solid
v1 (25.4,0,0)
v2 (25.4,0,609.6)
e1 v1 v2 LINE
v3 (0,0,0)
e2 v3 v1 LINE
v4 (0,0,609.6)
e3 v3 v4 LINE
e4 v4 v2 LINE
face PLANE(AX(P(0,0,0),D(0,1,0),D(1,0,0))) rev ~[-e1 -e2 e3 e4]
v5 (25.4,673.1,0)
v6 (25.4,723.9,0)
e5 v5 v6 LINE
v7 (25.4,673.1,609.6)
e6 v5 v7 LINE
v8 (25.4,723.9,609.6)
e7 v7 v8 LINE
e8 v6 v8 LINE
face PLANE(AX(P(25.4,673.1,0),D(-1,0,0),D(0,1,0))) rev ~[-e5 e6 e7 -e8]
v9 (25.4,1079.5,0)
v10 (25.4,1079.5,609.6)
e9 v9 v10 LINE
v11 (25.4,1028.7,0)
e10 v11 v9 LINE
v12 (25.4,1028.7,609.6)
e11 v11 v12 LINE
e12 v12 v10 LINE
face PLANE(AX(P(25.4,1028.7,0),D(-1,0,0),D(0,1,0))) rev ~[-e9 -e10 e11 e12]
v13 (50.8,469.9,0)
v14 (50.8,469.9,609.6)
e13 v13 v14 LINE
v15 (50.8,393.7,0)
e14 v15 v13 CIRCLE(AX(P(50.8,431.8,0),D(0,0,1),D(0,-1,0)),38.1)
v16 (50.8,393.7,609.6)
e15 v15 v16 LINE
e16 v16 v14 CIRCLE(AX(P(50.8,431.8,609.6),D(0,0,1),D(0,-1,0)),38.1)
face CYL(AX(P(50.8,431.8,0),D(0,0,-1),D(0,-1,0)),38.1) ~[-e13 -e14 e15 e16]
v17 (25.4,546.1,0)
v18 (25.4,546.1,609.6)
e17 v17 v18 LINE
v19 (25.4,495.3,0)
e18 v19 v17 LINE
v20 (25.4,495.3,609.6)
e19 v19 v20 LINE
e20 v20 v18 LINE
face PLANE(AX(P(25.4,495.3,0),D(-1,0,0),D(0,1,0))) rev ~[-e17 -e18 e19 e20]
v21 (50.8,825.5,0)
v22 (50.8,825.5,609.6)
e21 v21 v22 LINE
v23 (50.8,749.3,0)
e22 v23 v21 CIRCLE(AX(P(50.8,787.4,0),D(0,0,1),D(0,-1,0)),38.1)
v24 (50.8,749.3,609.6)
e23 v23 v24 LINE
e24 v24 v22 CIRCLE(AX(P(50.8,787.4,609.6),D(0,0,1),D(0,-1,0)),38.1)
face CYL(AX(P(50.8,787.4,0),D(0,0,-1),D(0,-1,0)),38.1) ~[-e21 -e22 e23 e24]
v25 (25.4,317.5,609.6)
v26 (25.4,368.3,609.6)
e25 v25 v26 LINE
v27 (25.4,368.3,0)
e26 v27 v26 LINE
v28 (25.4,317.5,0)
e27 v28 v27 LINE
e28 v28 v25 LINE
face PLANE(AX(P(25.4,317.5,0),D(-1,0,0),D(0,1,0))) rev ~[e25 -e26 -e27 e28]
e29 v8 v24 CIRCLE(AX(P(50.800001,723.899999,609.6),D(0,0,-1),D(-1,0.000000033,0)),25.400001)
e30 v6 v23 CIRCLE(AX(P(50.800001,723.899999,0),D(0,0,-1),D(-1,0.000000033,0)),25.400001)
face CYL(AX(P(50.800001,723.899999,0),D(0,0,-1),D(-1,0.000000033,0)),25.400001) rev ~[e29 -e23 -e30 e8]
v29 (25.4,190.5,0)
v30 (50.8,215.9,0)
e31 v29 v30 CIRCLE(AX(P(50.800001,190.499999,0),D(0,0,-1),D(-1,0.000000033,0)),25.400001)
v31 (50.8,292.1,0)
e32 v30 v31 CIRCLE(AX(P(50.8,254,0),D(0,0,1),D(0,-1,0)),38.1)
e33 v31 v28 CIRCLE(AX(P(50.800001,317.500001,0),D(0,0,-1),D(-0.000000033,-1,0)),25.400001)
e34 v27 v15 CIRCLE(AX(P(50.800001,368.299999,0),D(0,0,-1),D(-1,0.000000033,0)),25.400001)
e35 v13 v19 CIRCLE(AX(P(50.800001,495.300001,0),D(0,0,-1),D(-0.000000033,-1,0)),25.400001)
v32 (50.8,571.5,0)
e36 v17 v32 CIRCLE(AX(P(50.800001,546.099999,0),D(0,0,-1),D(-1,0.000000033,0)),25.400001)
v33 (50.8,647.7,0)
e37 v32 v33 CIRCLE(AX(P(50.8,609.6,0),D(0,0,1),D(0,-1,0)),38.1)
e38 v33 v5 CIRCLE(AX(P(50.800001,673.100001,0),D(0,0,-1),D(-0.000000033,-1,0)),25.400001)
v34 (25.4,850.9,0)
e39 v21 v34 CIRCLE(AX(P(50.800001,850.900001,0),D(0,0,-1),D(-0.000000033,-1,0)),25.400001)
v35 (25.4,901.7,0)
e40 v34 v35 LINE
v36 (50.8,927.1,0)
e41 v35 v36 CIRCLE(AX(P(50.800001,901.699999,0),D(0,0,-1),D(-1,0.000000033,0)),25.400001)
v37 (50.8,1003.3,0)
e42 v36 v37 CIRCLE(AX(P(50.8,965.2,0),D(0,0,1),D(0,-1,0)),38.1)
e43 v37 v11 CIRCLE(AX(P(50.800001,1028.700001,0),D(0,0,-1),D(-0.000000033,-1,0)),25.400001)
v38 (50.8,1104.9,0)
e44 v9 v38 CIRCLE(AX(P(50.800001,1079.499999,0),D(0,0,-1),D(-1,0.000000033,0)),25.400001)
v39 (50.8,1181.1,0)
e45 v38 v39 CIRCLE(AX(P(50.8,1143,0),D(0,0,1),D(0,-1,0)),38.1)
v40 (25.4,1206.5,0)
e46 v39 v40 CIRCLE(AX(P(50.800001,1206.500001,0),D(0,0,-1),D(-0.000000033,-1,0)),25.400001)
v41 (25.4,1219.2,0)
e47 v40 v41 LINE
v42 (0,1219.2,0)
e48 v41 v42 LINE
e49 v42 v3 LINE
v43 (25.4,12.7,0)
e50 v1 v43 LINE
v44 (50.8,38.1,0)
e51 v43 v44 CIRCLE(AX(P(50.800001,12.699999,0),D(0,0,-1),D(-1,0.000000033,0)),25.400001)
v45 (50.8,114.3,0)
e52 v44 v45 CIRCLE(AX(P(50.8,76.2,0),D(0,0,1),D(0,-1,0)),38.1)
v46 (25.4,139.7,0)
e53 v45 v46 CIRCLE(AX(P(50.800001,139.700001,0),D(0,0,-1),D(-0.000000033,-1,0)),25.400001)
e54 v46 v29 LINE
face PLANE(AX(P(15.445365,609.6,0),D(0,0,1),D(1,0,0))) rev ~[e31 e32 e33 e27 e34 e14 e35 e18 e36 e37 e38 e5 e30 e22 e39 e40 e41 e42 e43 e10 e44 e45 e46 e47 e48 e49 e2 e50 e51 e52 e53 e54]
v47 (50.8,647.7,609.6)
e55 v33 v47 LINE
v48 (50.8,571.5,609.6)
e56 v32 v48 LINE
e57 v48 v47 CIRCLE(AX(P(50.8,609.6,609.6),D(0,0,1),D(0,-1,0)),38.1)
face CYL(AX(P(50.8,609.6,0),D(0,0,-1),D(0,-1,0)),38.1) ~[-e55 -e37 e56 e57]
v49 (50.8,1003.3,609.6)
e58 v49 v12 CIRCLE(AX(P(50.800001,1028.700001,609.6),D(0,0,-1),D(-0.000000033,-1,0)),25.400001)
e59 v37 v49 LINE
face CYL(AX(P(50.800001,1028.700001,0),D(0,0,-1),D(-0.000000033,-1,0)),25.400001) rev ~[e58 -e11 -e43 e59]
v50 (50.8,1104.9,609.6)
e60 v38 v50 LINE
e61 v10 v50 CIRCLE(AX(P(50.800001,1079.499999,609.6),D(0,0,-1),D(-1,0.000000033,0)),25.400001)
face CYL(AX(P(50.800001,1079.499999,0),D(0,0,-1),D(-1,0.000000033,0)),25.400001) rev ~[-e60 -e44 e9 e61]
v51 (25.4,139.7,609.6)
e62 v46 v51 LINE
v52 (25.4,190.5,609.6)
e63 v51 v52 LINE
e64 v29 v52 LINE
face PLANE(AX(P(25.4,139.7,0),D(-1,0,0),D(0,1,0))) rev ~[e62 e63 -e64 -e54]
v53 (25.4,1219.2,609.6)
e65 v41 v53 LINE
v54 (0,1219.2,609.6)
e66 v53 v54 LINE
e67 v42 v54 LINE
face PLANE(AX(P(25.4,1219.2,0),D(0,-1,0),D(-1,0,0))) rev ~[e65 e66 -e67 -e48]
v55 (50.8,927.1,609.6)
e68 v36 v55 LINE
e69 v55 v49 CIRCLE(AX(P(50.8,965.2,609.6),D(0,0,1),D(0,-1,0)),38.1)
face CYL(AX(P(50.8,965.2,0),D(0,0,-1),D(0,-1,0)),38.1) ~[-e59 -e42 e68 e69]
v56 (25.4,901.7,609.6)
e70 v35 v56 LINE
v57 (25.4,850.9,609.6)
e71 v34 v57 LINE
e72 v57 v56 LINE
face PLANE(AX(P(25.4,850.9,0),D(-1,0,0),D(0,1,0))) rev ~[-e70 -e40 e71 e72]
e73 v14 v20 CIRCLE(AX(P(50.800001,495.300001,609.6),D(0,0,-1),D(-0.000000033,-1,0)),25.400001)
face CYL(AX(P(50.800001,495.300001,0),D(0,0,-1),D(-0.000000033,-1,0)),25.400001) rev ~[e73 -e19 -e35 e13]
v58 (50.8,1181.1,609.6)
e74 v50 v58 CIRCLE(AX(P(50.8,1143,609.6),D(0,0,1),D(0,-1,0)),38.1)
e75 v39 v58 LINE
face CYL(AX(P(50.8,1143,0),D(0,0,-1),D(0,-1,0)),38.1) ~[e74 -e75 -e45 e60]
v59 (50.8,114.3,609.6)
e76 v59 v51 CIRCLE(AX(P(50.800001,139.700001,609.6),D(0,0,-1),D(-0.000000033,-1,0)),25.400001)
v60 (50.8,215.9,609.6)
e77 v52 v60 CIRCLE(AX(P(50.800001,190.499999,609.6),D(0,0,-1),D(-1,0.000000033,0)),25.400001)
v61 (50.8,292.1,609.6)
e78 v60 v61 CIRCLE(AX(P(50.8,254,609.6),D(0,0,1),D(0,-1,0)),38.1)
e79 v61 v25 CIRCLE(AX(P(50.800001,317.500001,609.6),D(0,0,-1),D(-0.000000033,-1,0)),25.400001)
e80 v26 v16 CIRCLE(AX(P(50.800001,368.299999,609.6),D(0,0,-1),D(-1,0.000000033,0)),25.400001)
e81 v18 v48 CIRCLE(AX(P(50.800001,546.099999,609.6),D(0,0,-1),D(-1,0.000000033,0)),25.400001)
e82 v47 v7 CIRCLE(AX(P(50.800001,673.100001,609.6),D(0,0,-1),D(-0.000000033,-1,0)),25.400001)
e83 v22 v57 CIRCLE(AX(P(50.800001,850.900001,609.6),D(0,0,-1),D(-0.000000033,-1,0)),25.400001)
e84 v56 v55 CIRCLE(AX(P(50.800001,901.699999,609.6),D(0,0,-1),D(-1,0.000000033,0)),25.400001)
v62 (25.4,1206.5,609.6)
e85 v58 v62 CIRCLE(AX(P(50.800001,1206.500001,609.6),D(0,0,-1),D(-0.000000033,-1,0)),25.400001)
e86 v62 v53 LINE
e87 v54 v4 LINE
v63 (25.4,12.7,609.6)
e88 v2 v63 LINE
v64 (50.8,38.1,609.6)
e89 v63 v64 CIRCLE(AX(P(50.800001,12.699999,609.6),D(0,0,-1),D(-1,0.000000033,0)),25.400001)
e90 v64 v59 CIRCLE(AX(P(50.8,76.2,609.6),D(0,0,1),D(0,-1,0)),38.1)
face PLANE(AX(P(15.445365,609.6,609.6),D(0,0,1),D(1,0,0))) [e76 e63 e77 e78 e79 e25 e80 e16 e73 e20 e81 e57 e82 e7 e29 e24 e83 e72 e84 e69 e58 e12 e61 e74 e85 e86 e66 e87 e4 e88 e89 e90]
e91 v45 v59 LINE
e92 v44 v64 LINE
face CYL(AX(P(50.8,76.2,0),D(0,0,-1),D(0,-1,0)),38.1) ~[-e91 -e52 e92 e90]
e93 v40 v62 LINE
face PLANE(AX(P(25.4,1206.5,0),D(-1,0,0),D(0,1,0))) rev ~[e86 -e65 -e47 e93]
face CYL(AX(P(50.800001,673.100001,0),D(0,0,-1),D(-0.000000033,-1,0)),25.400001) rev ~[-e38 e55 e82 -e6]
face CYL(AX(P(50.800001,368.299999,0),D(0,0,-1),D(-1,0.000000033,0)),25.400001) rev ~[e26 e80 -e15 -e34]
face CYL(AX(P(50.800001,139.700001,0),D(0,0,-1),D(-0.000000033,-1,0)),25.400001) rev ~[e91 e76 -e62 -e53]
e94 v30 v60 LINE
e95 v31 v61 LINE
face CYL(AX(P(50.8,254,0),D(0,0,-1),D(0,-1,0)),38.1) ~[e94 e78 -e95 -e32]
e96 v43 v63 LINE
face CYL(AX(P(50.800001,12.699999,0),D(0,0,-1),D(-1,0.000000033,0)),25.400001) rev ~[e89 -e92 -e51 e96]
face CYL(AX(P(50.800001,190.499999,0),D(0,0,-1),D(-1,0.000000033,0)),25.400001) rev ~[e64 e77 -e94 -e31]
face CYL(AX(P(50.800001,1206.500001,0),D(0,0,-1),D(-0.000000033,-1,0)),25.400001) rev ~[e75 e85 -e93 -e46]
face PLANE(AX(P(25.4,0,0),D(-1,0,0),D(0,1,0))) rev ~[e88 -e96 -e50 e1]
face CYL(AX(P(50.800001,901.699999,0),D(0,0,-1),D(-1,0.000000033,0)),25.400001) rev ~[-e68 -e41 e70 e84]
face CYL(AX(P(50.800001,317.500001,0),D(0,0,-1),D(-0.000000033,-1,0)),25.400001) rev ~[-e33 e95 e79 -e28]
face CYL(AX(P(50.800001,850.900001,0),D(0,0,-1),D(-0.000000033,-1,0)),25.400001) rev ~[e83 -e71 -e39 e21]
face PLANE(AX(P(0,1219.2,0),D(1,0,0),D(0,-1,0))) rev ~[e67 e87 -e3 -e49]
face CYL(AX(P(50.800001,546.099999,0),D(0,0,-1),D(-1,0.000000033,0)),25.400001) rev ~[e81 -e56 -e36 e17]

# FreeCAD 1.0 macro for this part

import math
import FreeCAD as App
import Part
import Sketcher
Q = App.Units.Quantity

doc = App.newDocument("Part")
body = doc.addObject("PartDesign::Body", "Body")

# Sketch on XY plane
sketch1 = doc.addObject("Sketcher::SketchObject", "Sketch")
body.addObject(sketch1)
sketch1.AttachmentSupport = (doc.XY_Plane, [""])
sketch1.MapMode = "FlatFace"
sketch1.addGeometry([
    Part.LineSegment(App.Vector(0, 1219, 0), App.Vector(0, 0, 0)),  # 0
    Part.LineSegment(App.Vector(0, 0, 0), App.Vector(25, 0, 0)),  # 1
    Part.LineSegment(App.Vector(25, 0, 0), App.Vector(25, 13, 0)),  # 2
    Part.ArcOfCircle(Part.Circle(App.Vector(51, 13, 0), App.Vector(0, 0, 1), 25), math.radians(90), math.radians(180)),  # 3
    Part.ArcOfCircle(Part.Circle(App.Vector(51, 76, 0), App.Vector(0, 0, 1), 38), math.radians(-90), math.radians(90)),  # 4
    Part.ArcOfCircle(Part.Circle(App.Vector(51, 140, 0), App.Vector(0, 0, 1), 25), math.radians(-180), math.radians(-90)),  # 5
    Part.LineSegment(App.Vector(25, 140, 0), App.Vector(25, 190, 0)),  # 6
    Part.ArcOfCircle(Part.Circle(App.Vector(51, 190, 0), App.Vector(0, 0, 1), 25), math.radians(90), math.radians(180)),  # 7
    Part.ArcOfCircle(Part.Circle(App.Vector(51, 254, 0), App.Vector(0, 0, 1), 38), math.radians(-90), math.radians(90)),  # 8
    Part.ArcOfCircle(Part.Circle(App.Vector(51, 318, 0), App.Vector(0, 0, 1), 25), math.radians(-180), math.radians(-90)),  # 9
    Part.LineSegment(App.Vector(25, 318, 0), App.Vector(25, 368, 0)),  # 10
    Part.ArcOfCircle(Part.Circle(App.Vector(51, 368, 0), App.Vector(0, 0, 1), 25), math.radians(90), math.radians(180)),  # 11
    Part.ArcOfCircle(Part.Circle(App.Vector(51, 432, 0), App.Vector(0, 0, 1), 38), math.radians(-90), math.radians(90)),  # 12
    Part.ArcOfCircle(Part.Circle(App.Vector(51, 495, 0), App.Vector(0, 0, 1), 25), math.radians(-180), math.radians(-90)),  # 13
    Part.LineSegment(App.Vector(25, 495, 0), App.Vector(25, 546, 0)),  # 14
    Part.ArcOfCircle(Part.Circle(App.Vector(51, 546, 0), App.Vector(0, 0, 1), 25), math.radians(90), math.radians(180)),  # 15
    Part.ArcOfCircle(Part.Circle(App.Vector(51, 610, 0), App.Vector(0, 0, 1), 38), math.radians(-90), math.radians(90)),  # 16
    Part.ArcOfCircle(Part.Circle(App.Vector(51, 673, 0), App.Vector(0, 0, 1), 25), math.radians(-180), math.radians(-90)),  # 17
    Part.LineSegment(App.Vector(25, 673, 0), App.Vector(25, 724, 0)),  # 18
    Part.ArcOfCircle(Part.Circle(App.Vector(51, 724, 0), App.Vector(0, 0, 1), 25), math.radians(90), math.radians(180)),  # 19
    Part.ArcOfCircle(Part.Circle(App.Vector(51, 787, 0), App.Vector(0, 0, 1), 38), math.radians(-90), math.radians(90)),  # 20
    Part.ArcOfCircle(Part.Circle(App.Vector(51, 851, 0), App.Vector(0, 0, 1), 25), math.radians(-180), math.radians(-90)),  # 21
    Part.LineSegment(App.Vector(25, 851, 0), App.Vector(25, 902, 0)),  # 22
    Part.ArcOfCircle(Part.Circle(App.Vector(51, 902, 0), App.Vector(0, 0, 1), 25), math.radians(90), math.radians(180)),  # 23
    Part.ArcOfCircle(Part.Circle(App.Vector(51, 965, 0), App.Vector(0, 0, 1), 38), math.radians(-90), math.radians(90)),  # 24
    Part.ArcOfCircle(Part.Circle(App.Vector(51, 1029, 0), App.Vector(0, 0, 1), 25), math.radians(-180), math.radians(-90)),  # 25
    Part.LineSegment(App.Vector(25, 1029, 0), App.Vector(25, 1080, 0)),  # 26
    Part.ArcOfCircle(Part.Circle(App.Vector(51, 1079, 0), App.Vector(0, 0, 1), 25), math.radians(90), math.radians(180)),  # 27
    Part.ArcOfCircle(Part.Circle(App.Vector(51, 1143, 0), App.Vector(0, 0, 1), 38), math.radians(-90), math.radians(90)),  # 28
    Part.ArcOfCircle(Part.Circle(App.Vector(51, 1207, 0), App.Vector(0, 0, 1), 25), math.radians(-180), math.radians(-90)),  # 29
    Part.LineSegment(App.Vector(25, 1206, 0), App.Vector(25, 1219, 0)),  # 30
    Part.LineSegment(App.Vector(25, 1219, 0), App.Vector(0, 1219, 0)),  # 31
], False)
sketch1.addConstraint([
    Sketcher.Constraint("Coincident", 0, 2, 1, 1),
    Sketcher.Constraint("Coincident", 1, 2, 2, 1),
    Sketcher.Constraint("Tangent", 2, 2, 3, 2),
    Sketcher.Constraint("Tangent", 3, 1, 4, 1),
    Sketcher.Constraint("Tangent", 4, 2, 5, 2),
    Sketcher.Constraint("Tangent", 5, 1, 6, 1),
    Sketcher.Constraint("Tangent", 6, 2, 7, 2),
    Sketcher.Constraint("Tangent", 7, 1, 8, 1),
    Sketcher.Constraint("Tangent", 8, 2, 9, 2),
    Sketcher.Constraint("Tangent", 9, 1, 10, 1),
    Sketcher.Constraint("Tangent", 10, 2, 11, 2),
    Sketcher.Constraint("Tangent", 11, 1, 12, 1),
    Sketcher.Constraint("Tangent", 12, 2, 13, 2),
    Sketcher.Constraint("Tangent", 13, 1, 14, 1),
    Sketcher.Constraint("Tangent", 14, 2, 15, 2),
    Sketcher.Constraint("Tangent", 15, 1, 16, 1),
    Sketcher.Constraint("Tangent", 16, 2, 17, 2),
    Sketcher.Constraint("Tangent", 17, 1, 18, 1),
    Sketcher.Constraint("Tangent", 18, 2, 19, 2),
    Sketcher.Constraint("Tangent", 19, 1, 20, 1),
    Sketcher.Constraint("Tangent", 20, 2, 21, 2),
    Sketcher.Constraint("Tangent", 21, 1, 22, 1),
    Sketcher.Constraint("Tangent", 22, 2, 23, 2),
    Sketcher.Constraint("Tangent", 23, 1, 24, 1),
    Sketcher.Constraint("Tangent", 24, 2, 25, 2),
    Sketcher.Constraint("Tangent", 25, 1, 26, 1),
    Sketcher.Constraint("Tangent", 26, 2, 27, 2),
    Sketcher.Constraint("Tangent", 27, 1, 28, 1),
    Sketcher.Constraint("Tangent", 28, 2, 29, 2),
    Sketcher.Constraint("Tangent", 29, 1, 30, 1),
    Sketcher.Constraint("Coincident", 30, 2, 31, 1),
    Sketcher.Constraint("Coincident", 31, 2, 0, 1),
    Sketcher.Constraint("Vertical", 0),
    Sketcher.Constraint("Horizontal", 1),
    Sketcher.Constraint("Vertical", 2),
    Sketcher.Constraint("Vertical", 6),
    Sketcher.Constraint("Vertical", 10),
    Sketcher.Constraint("Vertical", 14),
    Sketcher.Constraint("Vertical", 18),
    Sketcher.Constraint("Vertical", 22),
    Sketcher.Constraint("Vertical", 26),
    Sketcher.Constraint("Vertical", 30),
    Sketcher.Constraint("Horizontal", 31),
    Sketcher.Constraint("Coincident", 0, 2, -1, 1),
    Sketcher.Constraint("Equal", 3, 5),
    Sketcher.Constraint("Equal", 5, 7),
    Sketcher.Constraint("Equal", 4, 8),
    Sketcher.Constraint("Equal", 7, 9),
    Sketcher.Constraint("Equal", 9, 11),
    Sketcher.Constraint("Equal", 8, 12),
    Sketcher.Constraint("Equal", 11, 13),
    Sketcher.Constraint("Equal", 13, 15),
    Sketcher.Constraint("Equal", 12, 16),
    Sketcher.Constraint("Equal", 15, 17),
    Sketcher.Constraint("Equal", 17, 19),
    Sketcher.Constraint("Equal", 16, 20),
    Sketcher.Constraint("Equal", 19, 21),
    Sketcher.Constraint("Equal", 21, 23),
    Sketcher.Constraint("Equal", 20, 24),
    Sketcher.Constraint("Equal", 23, 25),
    Sketcher.Constraint("Equal", 25, 27),
    Sketcher.Constraint("Equal", 24, 28),
    Sketcher.Constraint("Equal", 27, 29),
    Sketcher.Constraint("Vertical", 3, 3, 4, 3),
    Sketcher.Constraint("Vertical", 4, 3, 5, 3),
    Sketcher.Constraint("Vertical", 7, 3, 8, 3),
    Sketcher.Constraint("Vertical", 8, 3, 9, 3),
    Sketcher.Constraint("Vertical", 11, 3, 12, 3),
    Sketcher.Constraint("Vertical", 12, 3, 13, 3),
    Sketcher.Constraint("Vertical", 15, 3, 16, 3),
    Sketcher.Constraint("Vertical", 16, 3, 17, 3),
    Sketcher.Constraint("Vertical", 19, 3, 20, 3),
    Sketcher.Constraint("Vertical", 20, 3, 21, 3),
    Sketcher.Constraint("Vertical", 23, 3, 24, 3),
    Sketcher.Constraint("Vertical", 24, 3, 25, 3),
    Sketcher.Constraint("Vertical", 27, 3, 28, 3),
    Sketcher.Constraint("Vertical", 28, 3, 29, 3),
    Sketcher.Constraint("Equal", 6, 10),
    Sketcher.Constraint("Equal", 10, 14),
    Sketcher.Constraint("Equal", 14, 18),
    Sketcher.Constraint("Equal", 18, 22),
    Sketcher.Constraint("Equal", 22, 26),
    Sketcher.Constraint("Equal", 2, 30),
    Sketcher.Constraint("Radius", 3, Q("1 in")),
    Sketcher.Constraint("Radius", 4, Q("1.5 in")),
    Sketcher.Constraint("DistanceX", 1, 1, 1, 2, Q("1 in")),
    Sketcher.Constraint("DistanceY", 0, 2, 0, 1, Q("48 in")),
    Sketcher.Constraint("DistanceY", 6, 1, 6, 2, Q("2 in")),
])
pad1 = doc.addObject("PartDesign::Pad", "Pad")
body.addObject(pad1)
pad1.Profile = sketch1
pad1.Length = Q("24 in")

doc.recompute()
